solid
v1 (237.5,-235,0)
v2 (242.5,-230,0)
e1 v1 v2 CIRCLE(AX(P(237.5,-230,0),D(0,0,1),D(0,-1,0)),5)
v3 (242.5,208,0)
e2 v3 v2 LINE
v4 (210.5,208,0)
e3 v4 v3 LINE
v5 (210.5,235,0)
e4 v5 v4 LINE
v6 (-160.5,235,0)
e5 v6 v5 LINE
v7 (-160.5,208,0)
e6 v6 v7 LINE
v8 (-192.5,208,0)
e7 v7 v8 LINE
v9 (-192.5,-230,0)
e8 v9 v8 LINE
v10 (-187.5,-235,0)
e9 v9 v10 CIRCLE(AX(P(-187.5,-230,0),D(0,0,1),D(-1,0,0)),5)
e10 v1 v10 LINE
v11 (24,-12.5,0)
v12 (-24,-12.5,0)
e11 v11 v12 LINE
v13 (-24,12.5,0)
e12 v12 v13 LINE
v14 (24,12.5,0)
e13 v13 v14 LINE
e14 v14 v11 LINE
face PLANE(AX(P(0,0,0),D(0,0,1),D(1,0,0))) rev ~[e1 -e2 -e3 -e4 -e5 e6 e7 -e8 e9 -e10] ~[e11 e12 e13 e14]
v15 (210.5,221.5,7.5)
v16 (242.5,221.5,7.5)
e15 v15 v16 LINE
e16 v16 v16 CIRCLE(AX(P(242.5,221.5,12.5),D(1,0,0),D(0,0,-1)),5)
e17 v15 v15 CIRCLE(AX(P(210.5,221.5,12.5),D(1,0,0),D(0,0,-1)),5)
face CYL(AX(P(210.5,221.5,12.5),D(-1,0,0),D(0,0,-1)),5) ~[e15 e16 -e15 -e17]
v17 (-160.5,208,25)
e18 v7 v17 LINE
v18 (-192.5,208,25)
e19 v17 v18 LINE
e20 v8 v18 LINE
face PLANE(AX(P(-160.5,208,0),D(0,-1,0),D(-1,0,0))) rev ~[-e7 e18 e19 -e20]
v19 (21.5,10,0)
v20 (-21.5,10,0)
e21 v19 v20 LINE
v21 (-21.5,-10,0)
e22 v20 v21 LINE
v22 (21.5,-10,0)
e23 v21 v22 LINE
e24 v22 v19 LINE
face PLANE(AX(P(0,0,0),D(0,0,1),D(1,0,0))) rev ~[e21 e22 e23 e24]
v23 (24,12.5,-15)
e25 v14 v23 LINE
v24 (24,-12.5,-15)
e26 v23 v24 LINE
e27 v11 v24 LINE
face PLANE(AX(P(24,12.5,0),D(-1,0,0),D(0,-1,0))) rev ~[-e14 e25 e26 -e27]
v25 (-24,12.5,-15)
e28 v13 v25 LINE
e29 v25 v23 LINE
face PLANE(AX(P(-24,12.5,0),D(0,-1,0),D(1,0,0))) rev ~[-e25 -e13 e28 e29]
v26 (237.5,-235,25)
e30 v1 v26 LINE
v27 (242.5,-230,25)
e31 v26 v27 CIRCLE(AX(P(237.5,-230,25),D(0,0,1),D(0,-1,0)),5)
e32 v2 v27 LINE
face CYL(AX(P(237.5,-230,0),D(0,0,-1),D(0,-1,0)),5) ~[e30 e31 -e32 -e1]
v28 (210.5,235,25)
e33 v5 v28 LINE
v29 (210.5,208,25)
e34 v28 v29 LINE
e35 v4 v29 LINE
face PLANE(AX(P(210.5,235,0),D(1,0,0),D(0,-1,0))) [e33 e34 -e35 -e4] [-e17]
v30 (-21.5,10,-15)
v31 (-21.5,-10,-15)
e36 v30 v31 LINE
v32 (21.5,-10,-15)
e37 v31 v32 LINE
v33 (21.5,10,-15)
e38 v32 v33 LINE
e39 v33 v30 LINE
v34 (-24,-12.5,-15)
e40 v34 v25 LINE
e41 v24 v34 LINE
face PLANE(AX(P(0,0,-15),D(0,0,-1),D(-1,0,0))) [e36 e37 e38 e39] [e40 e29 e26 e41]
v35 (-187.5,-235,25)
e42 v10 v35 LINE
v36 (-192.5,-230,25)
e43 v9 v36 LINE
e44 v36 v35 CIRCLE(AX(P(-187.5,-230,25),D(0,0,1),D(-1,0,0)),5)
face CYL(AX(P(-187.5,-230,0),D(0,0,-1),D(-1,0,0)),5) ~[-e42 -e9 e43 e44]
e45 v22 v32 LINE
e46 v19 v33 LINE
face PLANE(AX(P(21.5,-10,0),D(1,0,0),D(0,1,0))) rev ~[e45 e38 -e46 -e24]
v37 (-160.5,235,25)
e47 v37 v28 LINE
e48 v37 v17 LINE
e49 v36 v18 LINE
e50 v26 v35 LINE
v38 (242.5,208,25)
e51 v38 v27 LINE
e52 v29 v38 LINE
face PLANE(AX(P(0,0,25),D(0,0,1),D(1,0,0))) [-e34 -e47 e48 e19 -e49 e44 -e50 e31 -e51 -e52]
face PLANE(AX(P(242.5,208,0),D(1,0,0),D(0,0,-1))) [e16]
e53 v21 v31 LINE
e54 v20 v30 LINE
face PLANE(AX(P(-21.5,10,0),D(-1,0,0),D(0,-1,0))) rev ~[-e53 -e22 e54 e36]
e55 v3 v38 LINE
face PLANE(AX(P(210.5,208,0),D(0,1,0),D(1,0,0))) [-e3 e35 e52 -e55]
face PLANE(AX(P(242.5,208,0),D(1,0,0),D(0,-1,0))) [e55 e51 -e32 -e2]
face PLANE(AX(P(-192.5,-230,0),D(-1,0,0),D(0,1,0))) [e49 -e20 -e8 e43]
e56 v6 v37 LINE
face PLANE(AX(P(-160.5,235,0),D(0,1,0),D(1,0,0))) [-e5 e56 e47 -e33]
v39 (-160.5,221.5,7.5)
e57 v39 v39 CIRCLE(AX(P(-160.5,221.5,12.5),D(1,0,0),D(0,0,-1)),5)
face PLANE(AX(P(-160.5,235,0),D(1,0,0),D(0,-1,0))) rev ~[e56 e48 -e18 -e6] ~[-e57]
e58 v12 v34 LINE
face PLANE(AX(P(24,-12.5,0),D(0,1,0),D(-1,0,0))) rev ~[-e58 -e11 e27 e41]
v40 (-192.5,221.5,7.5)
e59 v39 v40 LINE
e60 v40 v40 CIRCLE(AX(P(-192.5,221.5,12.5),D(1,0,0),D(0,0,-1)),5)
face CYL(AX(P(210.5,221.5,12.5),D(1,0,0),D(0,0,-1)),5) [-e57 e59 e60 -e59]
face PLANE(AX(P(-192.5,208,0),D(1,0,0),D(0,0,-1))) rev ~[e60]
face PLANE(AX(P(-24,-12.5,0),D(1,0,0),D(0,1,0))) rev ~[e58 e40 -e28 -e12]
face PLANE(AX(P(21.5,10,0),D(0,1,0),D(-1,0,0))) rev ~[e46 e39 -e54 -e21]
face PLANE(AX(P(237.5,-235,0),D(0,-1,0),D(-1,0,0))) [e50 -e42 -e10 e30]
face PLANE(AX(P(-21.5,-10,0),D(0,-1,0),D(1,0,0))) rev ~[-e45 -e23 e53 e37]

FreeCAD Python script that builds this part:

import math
import FreeCAD as App
import Part
import Sketcher
from FreeCAD import Vector


def add_polygon(sketch, points):
    """Adds a closed chain of lines whose ends are joined by coincident constraints."""
    first, n = sketch.GeometryCount, len(points)
    for a, b in zip(points, points[1:] + points[:1]):
        sketch.addGeometry(Part.LineSegment(App.Vector(*a, 0), App.Vector(*b, 0)), False)
    for i in range(n):
        sketch.addConstraint(Sketcher.Constraint("Coincident", first + i, 2, first + (i + 1) % n, 1))

doc = App.newDocument("Part")
params = doc.addObject("Spreadsheet::Sheet", "Params")
for row, (alias, value) in enumerate([
    ("sketch1_radius", "5 mm"),
    ("sketch1_width", "32 mm"),
    ("sketch1_height", "27 mm"),
    ("sketch1_height2", "438 mm"),
    ("pad1_length", "25 mm"),
    ("sketch2_diameter", "10 mm"),
    ("pad2_length", "32 mm"),
    ("pad2_length2", "403 mm"),
    ("sketch3_width", "48 mm"),
    ("sketch3_height", "25 mm"),
    ("sketch3_width2", "43 mm"),
    ("sketch3_height2", "20 mm"),
    ("pad3_length", "15 mm"),
], start=1):
    params.set(f"A{row}", alias)
    params.set(f"B{row}", "=" + value)
    params.setAlias(f"B{row}", alias)

body = doc.addObject("PartDesign::Body", "Body")

# Sketch on XY plane
sketch1 = body.newObject("Sketcher::SketchObject", "Sketch")
sketch1.AttachmentSupport = (doc.getObject("XY_Plane"), [""])
sketch1.MapMode = "FlatFace"
sketch1.addGeometry(Part.LineSegment(Vector(210, 235, 0), Vector(-160, 235, 0)), False)
sketch1.addGeometry(Part.LineSegment(Vector(-160, 235, 0), Vector(-160, 208, 0)), False)
sketch1.addGeometry(Part.LineSegment(Vector(-160, 208, 0), Vector(-192, 208, 0)), False)
sketch1.addGeometry(Part.LineSegment(Vector(-192, 208, 0), Vector(-192, -230, 0)), False)
sketch1.addGeometry(Part.ArcOfCircle(Part.Circle(Vector(-188, -230, 0), Vector(0, 0, 1), 5), math.radians(180), math.radians(270)), False)
sketch1.addGeometry(Part.LineSegment(Vector(-188, -235, 0), Vector(238, -235, 0)), False)
sketch1.addGeometry(Part.ArcOfCircle(Part.Circle(Vector(238, -230, 0), Vector(0, 0, 1), 5), math.radians(-90), math.radians(0)), False)
sketch1.addGeometry(Part.LineSegment(Vector(242, -230, 0), Vector(242, 208, 0)), False)
sketch1.addGeometry(Part.LineSegment(Vector(242, 208, 0), Vector(210, 208, 0)), False)
sketch1.addGeometry(Part.LineSegment(Vector(210, 208, 0), Vector(210, 235, 0)), False)
sketch1.addConstraint(Sketcher.Constraint("Coincident", 0, 2, 1, 1))
sketch1.addConstraint(Sketcher.Constraint("Coincident", 1, 2, 2, 1))
sketch1.addConstraint(Sketcher.Constraint("Coincident", 2, 2, 3, 1))
sketch1.addConstraint(Sketcher.Constraint("Tangent", 3, 2, 4, 1))
sketch1.addConstraint(Sketcher.Constraint("Tangent", 4, 2, 5, 1))
sketch1.addConstraint(Sketcher.Constraint("Tangent", 5, 2, 6, 1))
sketch1.addConstraint(Sketcher.Constraint("Tangent", 6, 2, 7, 1))
sketch1.addConstraint(Sketcher.Constraint("Coincident", 7, 2, 8, 1))
sketch1.addConstraint(Sketcher.Constraint("Coincident", 8, 2, 9, 1))
sketch1.addConstraint(Sketcher.Constraint("Coincident", 9, 2, 0, 1))
sketch1.addConstraint(Sketcher.Constraint("Horizontal", 0))
sketch1.addConstraint(Sketcher.Constraint("Vertical", 1))
sketch1.addConstraint(Sketcher.Constraint("Horizontal", 2))
sketch1.addConstraint(Sketcher.Constraint("Vertical", 3))
sketch1.addConstraint(Sketcher.Constraint("Horizontal", 5))
sketch1.addConstraint(Sketcher.Constraint("Vertical", 7))
sketch1.addConstraint(Sketcher.Constraint("Horizontal", 8))
sketch1.addConstraint(Sketcher.Constraint("Vertical", 9))
sketch1.addConstraint(Sketcher.Constraint("Equal", 4, 6))
sketch1.addConstraint(Sketcher.Constraint("Horizontal", 2, 2, 7, 2))
sketch1.addConstraint(Sketcher.Constraint("Equal", 2, 8))
sketch1.addConstraint(Sketcher.Constraint("Radius", 4, 5.0))
sketch1.addConstraint(Sketcher.Constraint("DistanceX", 2, 2, 2, 1, 32.0))
sketch1.addConstraint(Sketcher.Constraint("DistanceY", 1, 2, 1, 1, 27.0))
sketch1.addConstraint(Sketcher.Constraint("DistanceX", 3, 2, 6, 2, 435.0))
sketch1.addConstraint(Sketcher.Constraint("DistanceY", 3, 2, 3, 1, 438.0))
sketch1.addConstraint(Sketcher.Constraint("DistanceY", 4, 3, -1, 1, 230.0))
sketch1.addConstraint(Sketcher.Constraint("DistanceX", 4, 3, -1, 1, 187.5))
sketch1.setExpression("Constraints[21]", "Params.sketch1_radius")
sketch1.setExpression("Constraints[22]", "Params.sketch1_width")
sketch1.setExpression("Constraints[23]", "Params.sketch1_height")
sketch1.setExpression("Constraints[25]", "Params.sketch1_height2")
pad1 = body.newObject("PartDesign::Pad", "Pad")
pad1.Profile = sketch1
pad1.setExpression("Length", "Params.pad1_length")

# Sketch on YZ plane
sketch2 = body.newObject("Sketcher::SketchObject", "Sketch001")
sketch2.AttachmentSupport = (doc.getObject("YZ_Plane"), [""])
sketch2.MapMode = "FlatFace"
sketch2.AttachmentOffset = App.Placement(Vector(0, 0, 210.5), App.Rotation())
sketch2.addGeometry(Part.Circle(Vector(222, 12, 0), Vector(0, 0, 1), 5), False)
sketch2.addConstraint(Sketcher.Constraint("Diameter", 0, 10.0))
sketch2.addConstraint(Sketcher.Constraint("DistanceX", -1, 1, 0, 3, 221.5))
sketch2.addConstraint(Sketcher.Constraint("DistanceY", -1, 1, 0, 3, 12.5))
sketch2.setExpression("Constraints[0]", "Params.sketch2_diameter")
pad2 = body.newObject("PartDesign::Pad", "Pad001")
pad2.Profile = sketch2
pad2.Type = "TwoLengths"
pad2.setExpression("Length", "Params.pad2_length")
pad2.setExpression("Length2", "Params.pad2_length2")

# Sketch on XY plane
sketch3 = body.newObject("Sketcher::SketchObject", "Sketch002")
sketch3.AttachmentSupport = (doc.getObject("XY_Plane"), [""])
sketch3.MapMode = "FlatFace"
add_polygon(sketch3, [(-24, -12), (-24, 12), (24, 12), (24, -12)])  # lines 0-3
add_polygon(sketch3, [(22, -10), (22, 10), (-22, 10), (-22, -10)])  # lines 4-7
sketch3.addConstraint(Sketcher.Constraint("Vertical", 0))
sketch3.addConstraint(Sketcher.Constraint("Horizontal", 1))
sketch3.addConstraint(Sketcher.Constraint("Vertical", 2))
sketch3.addConstraint(Sketcher.Constraint("Horizontal", 3))
sketch3.addConstraint(Sketcher.Constraint("Vertical", 4))
sketch3.addConstraint(Sketcher.Constraint("Horizontal", 5))
sketch3.addConstraint(Sketcher.Constraint("Vertical", 6))
sketch3.addConstraint(Sketcher.Constraint("Horizontal", 7))
sketch3.addConstraint(Sketcher.Constraint("Symmetric", 0, 2, 2, 2, -1, 1))
sketch3.addConstraint(Sketcher.Constraint("Symmetric", 4, 2, 6, 2, -1, 1))
sketch3.addConstraint(Sketcher.Constraint("DistanceX", 1, 1, 1, 2, 48.0))
sketch3.addConstraint(Sketcher.Constraint("DistanceY", 0, 1, 0, 2, 25.0))
sketch3.addConstraint(Sketcher.Constraint("DistanceX", 5, 2, 5, 1, 43.0))
sketch3.addConstraint(Sketcher.Constraint("DistanceY", 4, 1, 4, 2, 20.0))
sketch3.setExpression("Constraints[18]", "Params.sketch3_width")
sketch3.setExpression("Constraints[19]", "Params.sketch3_height")
sketch3.setExpression("Constraints[20]", "Params.sketch3_width2")
sketch3.setExpression("Constraints[21]", "Params.sketch3_height2")
pad3 = body.newObject("PartDesign::Pad", "Pad002")
pad3.Profile = sketch3
pad3.setExpression("Length", "Params.pad3_length")
pad3.Reversed = True

doc.recompute()
